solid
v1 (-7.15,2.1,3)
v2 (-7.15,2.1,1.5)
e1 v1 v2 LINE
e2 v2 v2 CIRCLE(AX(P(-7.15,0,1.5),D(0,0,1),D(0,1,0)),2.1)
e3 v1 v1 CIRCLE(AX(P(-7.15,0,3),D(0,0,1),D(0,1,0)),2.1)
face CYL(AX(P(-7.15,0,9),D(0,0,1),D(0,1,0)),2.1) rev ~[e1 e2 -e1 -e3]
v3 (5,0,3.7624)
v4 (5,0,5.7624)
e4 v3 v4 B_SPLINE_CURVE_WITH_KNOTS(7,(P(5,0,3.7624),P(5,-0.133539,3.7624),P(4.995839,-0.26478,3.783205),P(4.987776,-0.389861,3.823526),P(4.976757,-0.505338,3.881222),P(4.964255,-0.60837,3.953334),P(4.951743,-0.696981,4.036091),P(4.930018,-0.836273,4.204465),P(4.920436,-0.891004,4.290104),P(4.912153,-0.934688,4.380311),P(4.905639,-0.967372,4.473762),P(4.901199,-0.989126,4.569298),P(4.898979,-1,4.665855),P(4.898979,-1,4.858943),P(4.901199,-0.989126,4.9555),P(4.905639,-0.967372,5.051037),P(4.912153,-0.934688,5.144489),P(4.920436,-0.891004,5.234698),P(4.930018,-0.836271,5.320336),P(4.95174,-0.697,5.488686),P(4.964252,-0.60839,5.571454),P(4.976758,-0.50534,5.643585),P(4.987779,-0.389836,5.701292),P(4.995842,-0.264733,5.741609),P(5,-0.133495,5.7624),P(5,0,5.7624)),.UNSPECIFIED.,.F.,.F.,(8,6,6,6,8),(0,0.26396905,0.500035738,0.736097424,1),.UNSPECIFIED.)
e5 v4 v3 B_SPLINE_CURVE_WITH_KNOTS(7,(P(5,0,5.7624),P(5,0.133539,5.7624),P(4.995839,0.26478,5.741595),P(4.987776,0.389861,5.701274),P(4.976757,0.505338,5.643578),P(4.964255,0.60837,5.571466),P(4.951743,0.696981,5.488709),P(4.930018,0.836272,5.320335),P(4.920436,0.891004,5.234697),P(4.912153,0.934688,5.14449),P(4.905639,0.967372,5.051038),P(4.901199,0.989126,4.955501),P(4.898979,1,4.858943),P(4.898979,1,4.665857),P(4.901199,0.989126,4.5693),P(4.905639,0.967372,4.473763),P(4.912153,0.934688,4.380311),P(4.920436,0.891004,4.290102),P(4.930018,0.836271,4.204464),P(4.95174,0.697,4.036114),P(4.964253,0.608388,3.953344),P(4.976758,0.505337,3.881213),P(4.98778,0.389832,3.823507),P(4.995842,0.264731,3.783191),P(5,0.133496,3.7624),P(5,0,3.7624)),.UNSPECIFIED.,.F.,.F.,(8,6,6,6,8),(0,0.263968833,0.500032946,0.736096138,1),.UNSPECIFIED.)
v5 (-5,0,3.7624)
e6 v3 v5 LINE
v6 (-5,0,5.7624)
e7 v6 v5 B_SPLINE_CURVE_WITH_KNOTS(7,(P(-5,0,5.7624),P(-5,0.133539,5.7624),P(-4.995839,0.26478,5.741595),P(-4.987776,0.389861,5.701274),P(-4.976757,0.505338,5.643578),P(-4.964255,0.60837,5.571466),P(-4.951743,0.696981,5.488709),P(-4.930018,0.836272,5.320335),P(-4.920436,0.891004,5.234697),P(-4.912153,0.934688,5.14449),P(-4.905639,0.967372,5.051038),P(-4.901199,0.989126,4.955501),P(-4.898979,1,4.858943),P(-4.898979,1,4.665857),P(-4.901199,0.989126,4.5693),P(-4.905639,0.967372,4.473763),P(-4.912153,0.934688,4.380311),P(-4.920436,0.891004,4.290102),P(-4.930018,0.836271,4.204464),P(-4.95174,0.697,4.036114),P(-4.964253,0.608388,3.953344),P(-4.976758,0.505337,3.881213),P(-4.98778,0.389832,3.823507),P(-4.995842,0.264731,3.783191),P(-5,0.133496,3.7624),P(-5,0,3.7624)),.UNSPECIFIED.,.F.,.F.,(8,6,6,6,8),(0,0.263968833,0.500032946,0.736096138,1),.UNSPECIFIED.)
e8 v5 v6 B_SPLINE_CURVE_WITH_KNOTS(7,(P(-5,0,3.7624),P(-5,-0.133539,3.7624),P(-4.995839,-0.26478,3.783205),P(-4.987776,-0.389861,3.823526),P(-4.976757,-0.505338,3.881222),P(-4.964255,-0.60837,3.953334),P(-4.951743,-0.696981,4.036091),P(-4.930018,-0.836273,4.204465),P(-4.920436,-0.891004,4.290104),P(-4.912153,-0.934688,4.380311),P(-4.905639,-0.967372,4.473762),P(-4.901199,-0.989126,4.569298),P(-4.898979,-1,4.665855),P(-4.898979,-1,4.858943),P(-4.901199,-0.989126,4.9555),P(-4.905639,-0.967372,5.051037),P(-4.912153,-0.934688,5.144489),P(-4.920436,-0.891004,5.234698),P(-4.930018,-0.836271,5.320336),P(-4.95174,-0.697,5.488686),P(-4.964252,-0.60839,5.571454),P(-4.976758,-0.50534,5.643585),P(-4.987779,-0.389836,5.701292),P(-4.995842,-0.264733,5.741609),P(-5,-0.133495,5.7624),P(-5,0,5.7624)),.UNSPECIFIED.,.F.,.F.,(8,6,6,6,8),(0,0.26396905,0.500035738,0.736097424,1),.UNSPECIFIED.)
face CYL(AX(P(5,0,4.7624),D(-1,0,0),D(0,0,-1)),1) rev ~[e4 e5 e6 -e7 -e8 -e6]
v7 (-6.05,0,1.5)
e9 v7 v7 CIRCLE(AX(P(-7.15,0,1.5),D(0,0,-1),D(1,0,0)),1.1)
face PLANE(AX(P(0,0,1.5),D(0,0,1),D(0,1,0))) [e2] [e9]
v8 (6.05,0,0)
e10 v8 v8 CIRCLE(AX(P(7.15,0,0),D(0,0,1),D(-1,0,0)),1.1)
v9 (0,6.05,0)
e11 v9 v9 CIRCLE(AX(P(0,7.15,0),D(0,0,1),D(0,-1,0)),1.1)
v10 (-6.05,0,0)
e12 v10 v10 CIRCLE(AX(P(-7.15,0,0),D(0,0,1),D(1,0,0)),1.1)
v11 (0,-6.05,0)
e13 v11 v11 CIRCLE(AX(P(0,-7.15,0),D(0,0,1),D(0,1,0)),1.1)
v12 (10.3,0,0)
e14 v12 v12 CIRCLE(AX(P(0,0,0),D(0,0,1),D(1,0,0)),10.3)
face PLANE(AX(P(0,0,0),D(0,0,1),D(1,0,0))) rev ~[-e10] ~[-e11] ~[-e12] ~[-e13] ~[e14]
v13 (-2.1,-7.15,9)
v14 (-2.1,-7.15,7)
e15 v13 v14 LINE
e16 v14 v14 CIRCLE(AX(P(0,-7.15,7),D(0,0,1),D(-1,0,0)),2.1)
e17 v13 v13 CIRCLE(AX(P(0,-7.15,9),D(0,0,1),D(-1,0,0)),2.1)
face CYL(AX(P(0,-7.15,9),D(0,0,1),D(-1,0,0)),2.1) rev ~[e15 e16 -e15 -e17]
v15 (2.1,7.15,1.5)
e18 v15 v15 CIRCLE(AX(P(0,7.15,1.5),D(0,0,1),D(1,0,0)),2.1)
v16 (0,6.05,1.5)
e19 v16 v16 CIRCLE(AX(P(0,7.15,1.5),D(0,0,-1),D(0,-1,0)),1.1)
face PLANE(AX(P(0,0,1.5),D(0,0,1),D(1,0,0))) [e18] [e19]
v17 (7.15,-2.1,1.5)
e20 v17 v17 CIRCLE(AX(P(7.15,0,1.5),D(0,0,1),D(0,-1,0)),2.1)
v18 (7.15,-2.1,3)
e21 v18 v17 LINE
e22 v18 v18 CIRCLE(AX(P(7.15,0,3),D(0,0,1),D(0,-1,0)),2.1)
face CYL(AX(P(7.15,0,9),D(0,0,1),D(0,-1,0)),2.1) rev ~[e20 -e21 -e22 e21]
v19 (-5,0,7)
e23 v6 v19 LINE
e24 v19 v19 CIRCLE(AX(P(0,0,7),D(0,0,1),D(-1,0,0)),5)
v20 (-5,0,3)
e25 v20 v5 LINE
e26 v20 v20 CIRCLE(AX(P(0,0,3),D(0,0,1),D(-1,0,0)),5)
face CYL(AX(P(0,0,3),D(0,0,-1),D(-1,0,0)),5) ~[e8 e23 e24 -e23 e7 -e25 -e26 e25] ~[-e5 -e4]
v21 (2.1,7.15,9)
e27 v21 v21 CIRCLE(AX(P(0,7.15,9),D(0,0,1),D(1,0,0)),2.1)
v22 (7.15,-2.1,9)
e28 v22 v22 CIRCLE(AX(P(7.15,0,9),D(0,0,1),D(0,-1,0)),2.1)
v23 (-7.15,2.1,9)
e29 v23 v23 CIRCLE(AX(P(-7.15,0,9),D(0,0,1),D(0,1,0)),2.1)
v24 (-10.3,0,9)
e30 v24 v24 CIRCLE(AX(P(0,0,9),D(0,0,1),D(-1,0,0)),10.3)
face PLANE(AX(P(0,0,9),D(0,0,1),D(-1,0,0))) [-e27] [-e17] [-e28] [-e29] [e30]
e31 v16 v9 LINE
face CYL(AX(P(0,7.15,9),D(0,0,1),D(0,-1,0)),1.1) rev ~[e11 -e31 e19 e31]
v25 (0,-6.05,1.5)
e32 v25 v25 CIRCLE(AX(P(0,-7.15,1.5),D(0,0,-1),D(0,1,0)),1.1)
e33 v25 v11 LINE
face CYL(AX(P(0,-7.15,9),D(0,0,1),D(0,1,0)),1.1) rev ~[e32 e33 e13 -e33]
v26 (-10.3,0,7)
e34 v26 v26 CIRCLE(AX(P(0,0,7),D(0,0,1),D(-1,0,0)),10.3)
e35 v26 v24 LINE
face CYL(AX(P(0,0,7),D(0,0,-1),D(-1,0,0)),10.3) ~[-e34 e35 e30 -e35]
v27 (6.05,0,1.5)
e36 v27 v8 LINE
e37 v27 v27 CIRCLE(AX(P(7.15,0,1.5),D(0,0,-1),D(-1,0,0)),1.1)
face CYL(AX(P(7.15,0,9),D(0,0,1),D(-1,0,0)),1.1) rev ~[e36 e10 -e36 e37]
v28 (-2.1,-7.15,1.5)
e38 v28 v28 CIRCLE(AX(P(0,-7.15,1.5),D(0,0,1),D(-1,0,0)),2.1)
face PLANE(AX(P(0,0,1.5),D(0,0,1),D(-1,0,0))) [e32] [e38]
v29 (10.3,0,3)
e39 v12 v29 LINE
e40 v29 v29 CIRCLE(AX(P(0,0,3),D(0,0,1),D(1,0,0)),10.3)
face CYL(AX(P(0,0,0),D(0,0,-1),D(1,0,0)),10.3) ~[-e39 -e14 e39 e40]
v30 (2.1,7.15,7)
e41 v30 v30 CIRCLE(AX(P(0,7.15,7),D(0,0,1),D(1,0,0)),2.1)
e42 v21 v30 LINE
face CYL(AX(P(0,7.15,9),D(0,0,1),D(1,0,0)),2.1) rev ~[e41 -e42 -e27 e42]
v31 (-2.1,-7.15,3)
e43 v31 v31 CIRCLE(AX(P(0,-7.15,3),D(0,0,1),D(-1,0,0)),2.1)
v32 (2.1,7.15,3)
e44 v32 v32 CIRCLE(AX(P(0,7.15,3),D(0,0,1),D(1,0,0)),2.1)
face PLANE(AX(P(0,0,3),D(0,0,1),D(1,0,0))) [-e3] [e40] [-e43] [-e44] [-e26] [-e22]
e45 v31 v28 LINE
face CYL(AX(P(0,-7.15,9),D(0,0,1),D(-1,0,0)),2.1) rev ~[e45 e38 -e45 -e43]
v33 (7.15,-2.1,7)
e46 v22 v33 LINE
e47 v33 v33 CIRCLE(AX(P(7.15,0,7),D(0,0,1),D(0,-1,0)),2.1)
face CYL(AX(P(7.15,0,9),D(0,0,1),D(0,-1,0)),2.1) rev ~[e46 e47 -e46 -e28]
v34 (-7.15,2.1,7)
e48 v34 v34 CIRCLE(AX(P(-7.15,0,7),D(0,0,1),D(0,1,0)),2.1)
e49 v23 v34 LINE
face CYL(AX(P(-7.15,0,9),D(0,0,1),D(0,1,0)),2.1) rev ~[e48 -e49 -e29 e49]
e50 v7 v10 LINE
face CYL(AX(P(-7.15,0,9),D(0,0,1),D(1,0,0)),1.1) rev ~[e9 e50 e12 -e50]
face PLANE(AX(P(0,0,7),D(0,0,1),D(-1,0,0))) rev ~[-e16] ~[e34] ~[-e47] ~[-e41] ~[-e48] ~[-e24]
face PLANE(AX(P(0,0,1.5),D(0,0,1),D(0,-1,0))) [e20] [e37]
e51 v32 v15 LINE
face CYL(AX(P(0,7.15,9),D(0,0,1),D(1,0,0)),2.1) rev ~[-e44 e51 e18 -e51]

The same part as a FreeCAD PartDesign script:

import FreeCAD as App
import Part
import Sketcher
from FreeCAD import Vector

doc = App.newDocument("Part")
params = doc.addObject("Spreadsheet::Sheet", "Params")
for row, (alias, value) in enumerate([
    ("sketch1_diameter", "20.6 mm"),
    ("pad1_length", "3 mm"),
    ("sketch2_diameter", "10 mm"),
    ("pad2_length", "4 mm"),
    ("sketch3_diameter", "20.6 mm"),
    ("pad3_length", "2 mm"),
    ("sketch4_diameter", "2.2 mm"),
    ("pocket1_length", "9 mm"),
    ("sketch5_diameter", "4.2 mm"),
    ("sketch5_diameter2", "2.2 mm"),
    ("pocket2_length", "7.5 mm"),
    ("sketch6_diameter", "2 mm"),
    ("hole_diameter", "2 mm"),
    ("hole_depth", "10 mm"),
], start=1):
    params.set(f"A{row}", alias)
    params.set(f"B{row}", "=" + value)
    params.setAlias(f"B{row}", alias)

body = doc.addObject("PartDesign::Body", "Body")

# Sketch on XY plane
sketch1 = body.newObject("Sketcher::SketchObject", "Sketch")
sketch1.AttachmentSupport = (doc.getObject("XY_Plane"), [""])
sketch1.MapMode = "FlatFace"
sketch1.addGeometry(Part.Circle(Vector(0, 0, 0), Vector(0, 0, 1), 10), False)
sketch1.addConstraint([
    Sketcher.Constraint("Coincident", 0, 3, -1, 1),
    Sketcher.Constraint("Diameter", 0, 20.6),
])
sketch1.setExpression("Constraints[1]", "Params.sketch1_diameter")
pad1 = body.newObject("PartDesign::Pad", "Pad")
pad1.Profile = sketch1
pad1.setExpression("Length", "Params.pad1_length")

# Sketch on XY plane
sketch2 = body.newObject("Sketcher::SketchObject", "Sketch001")
sketch2.AttachmentSupport = (doc.getObject("XY_Plane"), [""])
sketch2.MapMode = "FlatFace"
sketch2.AttachmentOffset = App.Placement(Vector(0, 0, 3), App.Rotation())
sketch2.addGeometry(Part.Circle(Vector(0, 0, 0), Vector(0, 0, 1), 5), False)
sketch2.addConstraint([
    Sketcher.Constraint("Coincident", 0, 3, -1, 1),
    Sketcher.Constraint("Diameter", 0, 10.0),
])
sketch2.setExpression("Constraints[1]", "Params.sketch2_diameter")
pad2 = body.newObject("PartDesign::Pad", "Pad001")
pad2.Profile = sketch2
pad2.setExpression("Length", "Params.pad2_length")

# Sketch on XY plane
sketch3 = body.newObject("Sketcher::SketchObject", "Sketch002")
sketch3.AttachmentSupport = (doc.getObject("XY_Plane"), [""])
sketch3.MapMode = "FlatFace"
sketch3.AttachmentOffset = App.Placement(Vector(0, 0, 7), App.Rotation())
sketch3.addGeometry(Part.Circle(Vector(0, 0, 0), Vector(0, 0, 1), 10), False)
sketch3.addConstraint([
    Sketcher.Constraint("Coincident", 0, 3, -1, 1),
    Sketcher.Constraint("Diameter", 0, 20.6),
])
sketch3.setExpression("Constraints[1]", "Params.sketch3_diameter")
pad3 = body.newObject("PartDesign::Pad", "Pad002")
pad3.Profile = sketch3
pad3.setExpression("Length", "Params.pad3_length")

# Sketch on XY plane
sketch4 = body.newObject("Sketcher::SketchObject", "Sketch003")
sketch4.AttachmentSupport = (doc.getObject("XY_Plane"), [""])
sketch4.MapMode = "FlatFace"
sketch4.AttachmentOffset = App.Placement(Vector(0, 0, 9), App.Rotation())
sketch4.addGeometry(Part.Circle(Vector(7.2, 0, 0), Vector(0, 0, 1), 1.1), False)
sketch4.addConstraint([
    Sketcher.Constraint("PointOnObject", 0, 3, -1),
    Sketcher.Constraint("Diameter", 0, 2.2),
    Sketcher.Constraint("DistanceX", -1, 1, 0, 3, 7.15),
])
sketch4.setExpression("Constraints[1]", "Params.sketch4_diameter")
pocket1 = body.newObject("PartDesign::Pocket", "Pocket")
pocket1.Profile = sketch4
pocket1.setExpression("Length", "Params.pocket1_length")
doc.recompute()

polarpattern = body.newObject("PartDesign::PolarPattern", "PolarPattern")
polarpattern.Originals = [pocket1]
polarpattern.Axis = (doc.getObject("Z_Axis"), [""])
polarpattern.Angle = 360
polarpattern.Occurrences = 4
body.Tip = polarpattern

# Sketch on XY plane
sketch5 = body.newObject("Sketcher::SketchObject", "Sketch004")
sketch5.AttachmentSupport = (doc.getObject("XY_Plane"), [""])
sketch5.MapMode = "FlatFace"
sketch5.AttachmentOffset = App.Placement(Vector(0, 0, 9), App.Rotation())
sketch5.addGeometry([
    Part.Circle(Vector(0, -7.2, 0), Vector(0, 0, 1), 2.1),
    Part.Circle(Vector(0, -7.2, 0), Vector(0, 0, 1), 1.1),
], False)
sketch5.addConstraint([
    Sketcher.Constraint("Coincident", 1, 3, 0, 3),
    Sketcher.Constraint("PointOnObject", 0, 3, -2),
    Sketcher.Constraint("Diameter", 0, 4.2),
    Sketcher.Constraint("Diameter", 1, 2.2),
    Sketcher.Constraint("DistanceY", 0, 3, -1, 1, 7.15),
])
sketch5.setExpression("Constraints[2]", "Params.sketch5_diameter")
sketch5.setExpression("Constraints[3]", "Params.sketch5_diameter2")
pocket2 = body.newObject("PartDesign::Pocket", "Pocket001")
pocket2.Profile = sketch5
pocket2.setExpression("Length", "Params.pocket2_length")
doc.recompute()

polarpattern2 = body.newObject("PartDesign::PolarPattern", "PolarPattern001")
polarpattern2.Originals = [pocket2]
polarpattern2.Axis = (doc.getObject("Z_Axis"), [""])
polarpattern2.Angle = 360
polarpattern2.Occurrences = 4
body.Tip = polarpattern2

# Sketch on YZ plane
sketch6 = body.newObject("Sketcher::SketchObject", "Sketch005")
sketch6.AttachmentSupport = (doc.getObject("YZ_Plane"), [""])
sketch6.MapMode = "FlatFace"
sketch6.AttachmentOffset = App.Placement(Vector(0, 0, 5), App.Rotation())
sketch6.addGeometry(Part.Circle(Vector(0, 4.8, 0), Vector(0, 0, 1), 1), False)
sketch6.addConstraint([
    Sketcher.Constraint("PointOnObject", 0, 3, -2),
    Sketcher.Constraint("Diameter", 0, 2.0),
    Sketcher.Constraint("DistanceY", -1, 1, 0, 3, 4.7624),
])
sketch6.setExpression("Constraints[1]", "Params.sketch6_diameter")
doc.recompute()
hole = body.newObject("PartDesign::Hole", "Hole")
hole.Profile = sketch6
hole.ThreadType = "None"
hole.setExpression("Diameter", "Params.hole_diameter")
hole.DepthType = "Dimension"
hole.setExpression("Depth", "Params.hole_depth")
hole.DrillPoint = "Flat"

doc.recompute()
